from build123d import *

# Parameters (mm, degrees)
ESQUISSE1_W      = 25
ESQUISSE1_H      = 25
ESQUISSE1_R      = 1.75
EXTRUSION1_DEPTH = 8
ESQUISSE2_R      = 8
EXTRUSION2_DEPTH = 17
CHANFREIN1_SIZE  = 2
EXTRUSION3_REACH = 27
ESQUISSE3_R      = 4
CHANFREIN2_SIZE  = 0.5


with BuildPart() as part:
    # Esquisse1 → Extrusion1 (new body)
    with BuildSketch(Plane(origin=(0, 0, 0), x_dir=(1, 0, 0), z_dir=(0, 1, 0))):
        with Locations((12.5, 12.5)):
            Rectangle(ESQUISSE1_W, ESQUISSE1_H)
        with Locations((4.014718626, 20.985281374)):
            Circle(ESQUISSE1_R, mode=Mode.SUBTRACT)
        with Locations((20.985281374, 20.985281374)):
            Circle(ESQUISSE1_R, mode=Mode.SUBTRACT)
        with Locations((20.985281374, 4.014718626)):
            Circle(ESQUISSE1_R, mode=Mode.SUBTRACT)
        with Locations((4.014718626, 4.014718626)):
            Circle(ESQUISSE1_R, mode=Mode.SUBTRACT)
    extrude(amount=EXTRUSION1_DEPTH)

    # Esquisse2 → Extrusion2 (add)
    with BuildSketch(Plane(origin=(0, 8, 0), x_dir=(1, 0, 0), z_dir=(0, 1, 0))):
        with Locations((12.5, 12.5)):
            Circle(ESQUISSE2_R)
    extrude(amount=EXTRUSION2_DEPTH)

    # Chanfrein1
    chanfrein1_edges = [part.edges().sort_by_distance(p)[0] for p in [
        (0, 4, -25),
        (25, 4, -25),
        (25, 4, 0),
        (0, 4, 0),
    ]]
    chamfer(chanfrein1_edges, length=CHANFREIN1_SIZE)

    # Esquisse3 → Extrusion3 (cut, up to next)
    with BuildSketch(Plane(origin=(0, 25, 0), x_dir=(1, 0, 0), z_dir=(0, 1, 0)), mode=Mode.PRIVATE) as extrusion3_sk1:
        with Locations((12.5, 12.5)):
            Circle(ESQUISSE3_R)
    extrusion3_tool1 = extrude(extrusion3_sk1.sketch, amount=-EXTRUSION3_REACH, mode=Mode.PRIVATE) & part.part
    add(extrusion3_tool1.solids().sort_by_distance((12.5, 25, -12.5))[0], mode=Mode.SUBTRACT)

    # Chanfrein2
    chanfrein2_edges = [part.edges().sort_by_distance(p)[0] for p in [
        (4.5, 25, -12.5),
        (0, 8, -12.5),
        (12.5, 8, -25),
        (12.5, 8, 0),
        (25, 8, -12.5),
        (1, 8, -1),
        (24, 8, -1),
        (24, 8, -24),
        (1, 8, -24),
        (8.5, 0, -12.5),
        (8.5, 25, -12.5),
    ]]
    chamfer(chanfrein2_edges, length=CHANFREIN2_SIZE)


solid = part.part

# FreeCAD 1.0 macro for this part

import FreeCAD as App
import Part
import Sketcher
Q = App.Units.Quantity


def edges_at(feature, points):
    """Names of the edges that pass closest to the given points."""
    edges = feature.Shape.Edges
    near = lambda p: min(range(len(edges)), key=lambda i: edges[i].distToShape(Part.Vertex(*p))[0])
    return sorted({f"Edge{near(p) + 1}" for p in points})

doc = App.newDocument("Part")
body = doc.addObject("PartDesign::Body", "Body")

sketch1 = body.newObject("Sketcher::SketchObject", "Sketch")
sketch1.AttachmentSupport = (doc.getObject("XZ_Plane"), [""])
sketch1.MapMode = "FlatFace"
sketch1.addGeometry(Part.LineSegment(App.Vector(0, -25, 0), App.Vector(0, 0, 0)), False)
sketch1.addGeometry(Part.LineSegment(App.Vector(0, 0, 0), App.Vector(25, 0, 0)), False)
sketch1.addGeometry(Part.LineSegment(App.Vector(25, 0, 0), App.Vector(25, -25, 0)), False)
sketch1.addGeometry(Part.LineSegment(App.Vector(25, -25, 0), App.Vector(0, -25, 0)), False)
sketch1.addGeometry(Part.Circle(App.Vector(4, -4, 0), App.Vector(0, 0, 1), 1.8), False)
sketch1.addGeometry(Part.Circle(App.Vector(21, -4, 0), App.Vector(0, 0, 1), 1.8), False)
sketch1.addGeometry(Part.Circle(App.Vector(4, -21, 0), App.Vector(0, 0, 1), 1.8), False)
sketch1.addGeometry(Part.Circle(App.Vector(21, -21, 0), App.Vector(0, 0, 1), 1.8), False)
sketch1.addConstraint(Sketcher.Constraint("Coincident", 0, 2, 1, 1))
sketch1.addConstraint(Sketcher.Constraint("Coincident", 1, 2, 2, 1))
sketch1.addConstraint(Sketcher.Constraint("Coincident", 2, 2, 3, 1))
sketch1.addConstraint(Sketcher.Constraint("Coincident", 3, 2, 0, 1))
sketch1.addConstraint(Sketcher.Constraint("Vertical", 0))
sketch1.addConstraint(Sketcher.Constraint("Horizontal", 1))
sketch1.addConstraint(Sketcher.Constraint("Vertical", 2))
sketch1.addConstraint(Sketcher.Constraint("Horizontal", 3))
sketch1.addConstraint(Sketcher.Constraint("Coincident", 0, 2, -1, 1))
sketch1.addConstraint(Sketcher.Constraint("Equal", 4, 5))
sketch1.addConstraint(Sketcher.Constraint("Equal", 5, 6))
sketch1.addConstraint(Sketcher.Constraint("Equal", 6, 7))
sketch1.addConstraint(Sketcher.Constraint("Horizontal", 4, 3, 5, 3))
sketch1.addConstraint(Sketcher.Constraint("Horizontal", 6, 3, 7, 3))
sketch1.addConstraint(Sketcher.Constraint("Vertical", 4, 3, 6, 3))
sketch1.addConstraint(Sketcher.Constraint("Vertical", 5, 3, 7, 3))
sketch1.addConstraint(Sketcher.Constraint("Equal", 3, 0))
sketch1.addConstraint(Sketcher.Constraint("Diameter", 4, Q("3.5 mm")))
sketch1.addConstraint(Sketcher.Constraint("DistanceX", 1, 1, 1, 2, Q("25 mm")))
sketch1.addConstraint(Sketcher.Constraint("DistanceX", -1, 1, 4, 3, Q("4.014719 mm")))
sketch1.addConstraint(Sketcher.Constraint("DistanceY", 4, 3, -1, 1, Q("4.014719 mm")))
sketch1.addConstraint(Sketcher.Constraint("DistanceX", -1, 1, 5, 3, Q("20.985281 mm")))
sketch1.addConstraint(Sketcher.Constraint("DistanceY", 6, 3, -1, 1, Q("20.985281 mm")))
pad1 = body.newObject("PartDesign::Pad", "Pad")
pad1.Profile = sketch1
pad1.Length = 8
pad1.Reversed = True

sketch2 = body.newObject("Sketcher::SketchObject", "Sketch001")
sketch2.AttachmentSupport = (doc.getObject("XZ_Plane"), [""])
sketch2.MapMode = "FlatFace"
sketch2.AttachmentOffset = App.Placement(App.Vector(0, 0, -8), App.Rotation())
sketch2.addGeometry(Part.Circle(App.Vector(12, -12, 0), App.Vector(0, 0, 1), 8), False)
sketch2.addConstraint(Sketcher.Constraint("Diameter", 0, Q("16 mm")))
sketch2.addConstraint(Sketcher.Constraint("DistanceX", -1, 1, 0, 3, Q("12.5 mm")))
sketch2.addConstraint(Sketcher.Constraint("DistanceY", 0, 3, -1, 1, Q("12.5 mm")))
pad2 = body.newObject("PartDesign::Pad", "Pad001")
pad2.Profile = sketch2
pad2.Length = 17
pad2.Reversed = True
doc.recompute()

chamfer = body.newObject("PartDesign::Chamfer", "Chamfer")
chamfer.Base = (pad2, edges_at(pad2, [
    (0, 4, -25),
    (25, 4, -25),
    (25, 4, 0),
    (0, 4, 0),
]))
chamfer.Size = 2

sketch3 = body.newObject("Sketcher::SketchObject", "Sketch002")
sketch3.AttachmentSupport = (doc.getObject("XZ_Plane"), [""])
sketch3.MapMode = "FlatFace"
sketch3.AttachmentOffset = App.Placement(App.Vector(0, 0, -25), App.Rotation())
sketch3.addGeometry(Part.Circle(App.Vector(12.5, -12.5, 0), App.Vector(0, 0, 1), 4), False)
sketch3.addConstraint(Sketcher.Constraint("Diameter", 0, Q("8 mm")))
sketch3.addConstraint(Sketcher.Constraint("DistanceX", -1, 1, 0, 3, Q("12.5 mm")))
sketch3.addConstraint(Sketcher.Constraint("DistanceY", 0, 3, -1, 1, Q("12.5 mm")))
pocket1 = body.newObject("PartDesign::Pocket", "Pocket")
pocket1.Profile = sketch3
pocket1.Type = "UpToFirst"
pocket1.Reversed = True
doc.recompute()

chamfer2 = body.newObject("PartDesign::Chamfer", "Chamfer001")
chamfer2.Base = (pocket1, edges_at(pocket1, [
    (4.5, 25, -12.5),
    (0, 8, -12.5),
    (12.5, 8, -25),
    (12.5, 8, 0),
    (25, 8, -12.5),
    (1, 8, -1),
    (24, 8, -1),
    (24, 8, -24),
    (1, 8, -24),
    (8.5, 0, -12.5),
    (8.5, 25, -12.5),
]))
chamfer2.Size = 0.5

doc.recompute()
